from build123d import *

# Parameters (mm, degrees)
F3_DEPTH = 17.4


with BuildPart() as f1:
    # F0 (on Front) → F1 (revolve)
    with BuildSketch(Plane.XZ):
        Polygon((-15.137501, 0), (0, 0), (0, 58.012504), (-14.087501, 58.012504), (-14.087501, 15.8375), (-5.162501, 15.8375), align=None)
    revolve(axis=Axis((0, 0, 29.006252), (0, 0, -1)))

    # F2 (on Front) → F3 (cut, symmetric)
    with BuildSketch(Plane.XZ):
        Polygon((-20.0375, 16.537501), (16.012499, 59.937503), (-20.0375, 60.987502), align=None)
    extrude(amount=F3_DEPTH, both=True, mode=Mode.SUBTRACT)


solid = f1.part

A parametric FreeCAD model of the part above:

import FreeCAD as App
import Part
import Sketcher

V = App.Vector

doc = App.newDocument("Part")
params = doc.addObject("Spreadsheet::Sheet", "Params")
for row, (alias, value) in enumerate([
    ("revolution_angle", "360 deg"),
    ("sketch2_height", "44.450001 mm"),
    ("pocket1_length", "34.8 mm"),
], start=1):
    params.set(f"A{row}", alias)
    params.set(f"B{row}", "=" + value)
    params.setAlias(f"B{row}", alias)

body = doc.addObject("PartDesign::Body", "Body")

sketch1 = body.newObject("Sketcher::SketchObject", "Sketch")
sketch1.AttachmentSupport = (doc.getObject("XZ_Plane"), [""])
sketch1.MapMode = "FlatFace"
sketch1.addGeometry([
    Part.LineSegment(V(-15, 0, 0), V(0, 0, 0)),
    Part.LineSegment(V(0, 0, 0), V(0, 58, 0)),
    Part.LineSegment(V(0, 58, 0), V(-14, 58, 0)),
    Part.LineSegment(V(-14, 58, 0), V(-14, 16, 0)),
    Part.LineSegment(V(-14, 16, 0), V(-5, 16, 0)),
    Part.LineSegment(V(-5, 16, 0), V(-15, 0, 0)),
], False)
sketch1.addConstraint([
    Sketcher.Constraint("Coincident", 0, 2, 1, 1),
    Sketcher.Constraint("Coincident", 1, 2, 2, 1),
    Sketcher.Constraint("Coincident", 2, 2, 3, 1),
    Sketcher.Constraint("Coincident", 3, 2, 4, 1),
    Sketcher.Constraint("Coincident", 4, 2, 5, 1),
    Sketcher.Constraint("Coincident", 5, 2, 0, 1),
    Sketcher.Constraint("Horizontal", 0),
    Sketcher.Constraint("Vertical", 1),
    Sketcher.Constraint("Horizontal", 2),
    Sketcher.Constraint("Vertical", 3),
    Sketcher.Constraint("Horizontal", 4),
    Sketcher.Constraint("Coincident", 0, 2, -1, 1),
    Sketcher.Constraint("DistanceX", 4, 1, 4, 2, 8.925),
    Sketcher.Constraint("DistanceX", 5, 2, 3, 2, 1.05),
    Sketcher.Constraint("DistanceX", 0, 1, 0, 2, 15.137501),
    Sketcher.Constraint("DistanceY", -1, 1, 3, 2, 15.8375),
    Sketcher.Constraint("DistanceY", 1, 1, 1, 2, 58.012504),
])
revolution = body.newObject("PartDesign::Revolution", "Revolution")
revolution.Profile = sketch1
revolution.ReferenceAxis = (sketch1, ["V_Axis"])
revolution.setExpression("Angle", "Params.revolution_angle")

sketch2 = body.newObject("Sketcher::SketchObject", "Sketch001")
sketch2.AttachmentSupport = (doc.getObject("XZ_Plane"), [""])
sketch2.MapMode = "FlatFace"
sketch2.addGeometry([
    Part.LineSegment(V(-20, 17, 0), V(16, 60, 0)),
    Part.LineSegment(V(16, 60, 0), V(-20, 61, 0)),
    Part.LineSegment(V(-20, 61, 0), V(-20, 17, 0)),
], False)
sketch2.addConstraint([
    Sketcher.Constraint("Coincident", 0, 2, 1, 1),
    Sketcher.Constraint("Coincident", 1, 2, 2, 1),
    Sketcher.Constraint("Coincident", 2, 2, 0, 1),
    Sketcher.Constraint("Vertical", 2),
    Sketcher.Constraint("DistanceY", 2, 2, 2, 1, 44.450001),
    Sketcher.Constraint("DistanceX", 1, 2, 0, 2, 36.049999),
    Sketcher.Constraint("DistanceY", 0, 2, 1, 2, 1.049999),
    Sketcher.Constraint("DistanceX", -1, 1, 0, 2, 16.012499),
    Sketcher.Constraint("DistanceY", -1, 1, 2, 2, 16.537501),
])
sketch2.setExpression("Constraints[4]", "Params.sketch2_height")
pocket1 = body.newObject("PartDesign::Pocket", "Pocket")
pocket1.Profile = sketch2
pocket1.setExpression("Length", "Params.pocket1_length")
pocket1.Midplane = True

doc.recompute()
